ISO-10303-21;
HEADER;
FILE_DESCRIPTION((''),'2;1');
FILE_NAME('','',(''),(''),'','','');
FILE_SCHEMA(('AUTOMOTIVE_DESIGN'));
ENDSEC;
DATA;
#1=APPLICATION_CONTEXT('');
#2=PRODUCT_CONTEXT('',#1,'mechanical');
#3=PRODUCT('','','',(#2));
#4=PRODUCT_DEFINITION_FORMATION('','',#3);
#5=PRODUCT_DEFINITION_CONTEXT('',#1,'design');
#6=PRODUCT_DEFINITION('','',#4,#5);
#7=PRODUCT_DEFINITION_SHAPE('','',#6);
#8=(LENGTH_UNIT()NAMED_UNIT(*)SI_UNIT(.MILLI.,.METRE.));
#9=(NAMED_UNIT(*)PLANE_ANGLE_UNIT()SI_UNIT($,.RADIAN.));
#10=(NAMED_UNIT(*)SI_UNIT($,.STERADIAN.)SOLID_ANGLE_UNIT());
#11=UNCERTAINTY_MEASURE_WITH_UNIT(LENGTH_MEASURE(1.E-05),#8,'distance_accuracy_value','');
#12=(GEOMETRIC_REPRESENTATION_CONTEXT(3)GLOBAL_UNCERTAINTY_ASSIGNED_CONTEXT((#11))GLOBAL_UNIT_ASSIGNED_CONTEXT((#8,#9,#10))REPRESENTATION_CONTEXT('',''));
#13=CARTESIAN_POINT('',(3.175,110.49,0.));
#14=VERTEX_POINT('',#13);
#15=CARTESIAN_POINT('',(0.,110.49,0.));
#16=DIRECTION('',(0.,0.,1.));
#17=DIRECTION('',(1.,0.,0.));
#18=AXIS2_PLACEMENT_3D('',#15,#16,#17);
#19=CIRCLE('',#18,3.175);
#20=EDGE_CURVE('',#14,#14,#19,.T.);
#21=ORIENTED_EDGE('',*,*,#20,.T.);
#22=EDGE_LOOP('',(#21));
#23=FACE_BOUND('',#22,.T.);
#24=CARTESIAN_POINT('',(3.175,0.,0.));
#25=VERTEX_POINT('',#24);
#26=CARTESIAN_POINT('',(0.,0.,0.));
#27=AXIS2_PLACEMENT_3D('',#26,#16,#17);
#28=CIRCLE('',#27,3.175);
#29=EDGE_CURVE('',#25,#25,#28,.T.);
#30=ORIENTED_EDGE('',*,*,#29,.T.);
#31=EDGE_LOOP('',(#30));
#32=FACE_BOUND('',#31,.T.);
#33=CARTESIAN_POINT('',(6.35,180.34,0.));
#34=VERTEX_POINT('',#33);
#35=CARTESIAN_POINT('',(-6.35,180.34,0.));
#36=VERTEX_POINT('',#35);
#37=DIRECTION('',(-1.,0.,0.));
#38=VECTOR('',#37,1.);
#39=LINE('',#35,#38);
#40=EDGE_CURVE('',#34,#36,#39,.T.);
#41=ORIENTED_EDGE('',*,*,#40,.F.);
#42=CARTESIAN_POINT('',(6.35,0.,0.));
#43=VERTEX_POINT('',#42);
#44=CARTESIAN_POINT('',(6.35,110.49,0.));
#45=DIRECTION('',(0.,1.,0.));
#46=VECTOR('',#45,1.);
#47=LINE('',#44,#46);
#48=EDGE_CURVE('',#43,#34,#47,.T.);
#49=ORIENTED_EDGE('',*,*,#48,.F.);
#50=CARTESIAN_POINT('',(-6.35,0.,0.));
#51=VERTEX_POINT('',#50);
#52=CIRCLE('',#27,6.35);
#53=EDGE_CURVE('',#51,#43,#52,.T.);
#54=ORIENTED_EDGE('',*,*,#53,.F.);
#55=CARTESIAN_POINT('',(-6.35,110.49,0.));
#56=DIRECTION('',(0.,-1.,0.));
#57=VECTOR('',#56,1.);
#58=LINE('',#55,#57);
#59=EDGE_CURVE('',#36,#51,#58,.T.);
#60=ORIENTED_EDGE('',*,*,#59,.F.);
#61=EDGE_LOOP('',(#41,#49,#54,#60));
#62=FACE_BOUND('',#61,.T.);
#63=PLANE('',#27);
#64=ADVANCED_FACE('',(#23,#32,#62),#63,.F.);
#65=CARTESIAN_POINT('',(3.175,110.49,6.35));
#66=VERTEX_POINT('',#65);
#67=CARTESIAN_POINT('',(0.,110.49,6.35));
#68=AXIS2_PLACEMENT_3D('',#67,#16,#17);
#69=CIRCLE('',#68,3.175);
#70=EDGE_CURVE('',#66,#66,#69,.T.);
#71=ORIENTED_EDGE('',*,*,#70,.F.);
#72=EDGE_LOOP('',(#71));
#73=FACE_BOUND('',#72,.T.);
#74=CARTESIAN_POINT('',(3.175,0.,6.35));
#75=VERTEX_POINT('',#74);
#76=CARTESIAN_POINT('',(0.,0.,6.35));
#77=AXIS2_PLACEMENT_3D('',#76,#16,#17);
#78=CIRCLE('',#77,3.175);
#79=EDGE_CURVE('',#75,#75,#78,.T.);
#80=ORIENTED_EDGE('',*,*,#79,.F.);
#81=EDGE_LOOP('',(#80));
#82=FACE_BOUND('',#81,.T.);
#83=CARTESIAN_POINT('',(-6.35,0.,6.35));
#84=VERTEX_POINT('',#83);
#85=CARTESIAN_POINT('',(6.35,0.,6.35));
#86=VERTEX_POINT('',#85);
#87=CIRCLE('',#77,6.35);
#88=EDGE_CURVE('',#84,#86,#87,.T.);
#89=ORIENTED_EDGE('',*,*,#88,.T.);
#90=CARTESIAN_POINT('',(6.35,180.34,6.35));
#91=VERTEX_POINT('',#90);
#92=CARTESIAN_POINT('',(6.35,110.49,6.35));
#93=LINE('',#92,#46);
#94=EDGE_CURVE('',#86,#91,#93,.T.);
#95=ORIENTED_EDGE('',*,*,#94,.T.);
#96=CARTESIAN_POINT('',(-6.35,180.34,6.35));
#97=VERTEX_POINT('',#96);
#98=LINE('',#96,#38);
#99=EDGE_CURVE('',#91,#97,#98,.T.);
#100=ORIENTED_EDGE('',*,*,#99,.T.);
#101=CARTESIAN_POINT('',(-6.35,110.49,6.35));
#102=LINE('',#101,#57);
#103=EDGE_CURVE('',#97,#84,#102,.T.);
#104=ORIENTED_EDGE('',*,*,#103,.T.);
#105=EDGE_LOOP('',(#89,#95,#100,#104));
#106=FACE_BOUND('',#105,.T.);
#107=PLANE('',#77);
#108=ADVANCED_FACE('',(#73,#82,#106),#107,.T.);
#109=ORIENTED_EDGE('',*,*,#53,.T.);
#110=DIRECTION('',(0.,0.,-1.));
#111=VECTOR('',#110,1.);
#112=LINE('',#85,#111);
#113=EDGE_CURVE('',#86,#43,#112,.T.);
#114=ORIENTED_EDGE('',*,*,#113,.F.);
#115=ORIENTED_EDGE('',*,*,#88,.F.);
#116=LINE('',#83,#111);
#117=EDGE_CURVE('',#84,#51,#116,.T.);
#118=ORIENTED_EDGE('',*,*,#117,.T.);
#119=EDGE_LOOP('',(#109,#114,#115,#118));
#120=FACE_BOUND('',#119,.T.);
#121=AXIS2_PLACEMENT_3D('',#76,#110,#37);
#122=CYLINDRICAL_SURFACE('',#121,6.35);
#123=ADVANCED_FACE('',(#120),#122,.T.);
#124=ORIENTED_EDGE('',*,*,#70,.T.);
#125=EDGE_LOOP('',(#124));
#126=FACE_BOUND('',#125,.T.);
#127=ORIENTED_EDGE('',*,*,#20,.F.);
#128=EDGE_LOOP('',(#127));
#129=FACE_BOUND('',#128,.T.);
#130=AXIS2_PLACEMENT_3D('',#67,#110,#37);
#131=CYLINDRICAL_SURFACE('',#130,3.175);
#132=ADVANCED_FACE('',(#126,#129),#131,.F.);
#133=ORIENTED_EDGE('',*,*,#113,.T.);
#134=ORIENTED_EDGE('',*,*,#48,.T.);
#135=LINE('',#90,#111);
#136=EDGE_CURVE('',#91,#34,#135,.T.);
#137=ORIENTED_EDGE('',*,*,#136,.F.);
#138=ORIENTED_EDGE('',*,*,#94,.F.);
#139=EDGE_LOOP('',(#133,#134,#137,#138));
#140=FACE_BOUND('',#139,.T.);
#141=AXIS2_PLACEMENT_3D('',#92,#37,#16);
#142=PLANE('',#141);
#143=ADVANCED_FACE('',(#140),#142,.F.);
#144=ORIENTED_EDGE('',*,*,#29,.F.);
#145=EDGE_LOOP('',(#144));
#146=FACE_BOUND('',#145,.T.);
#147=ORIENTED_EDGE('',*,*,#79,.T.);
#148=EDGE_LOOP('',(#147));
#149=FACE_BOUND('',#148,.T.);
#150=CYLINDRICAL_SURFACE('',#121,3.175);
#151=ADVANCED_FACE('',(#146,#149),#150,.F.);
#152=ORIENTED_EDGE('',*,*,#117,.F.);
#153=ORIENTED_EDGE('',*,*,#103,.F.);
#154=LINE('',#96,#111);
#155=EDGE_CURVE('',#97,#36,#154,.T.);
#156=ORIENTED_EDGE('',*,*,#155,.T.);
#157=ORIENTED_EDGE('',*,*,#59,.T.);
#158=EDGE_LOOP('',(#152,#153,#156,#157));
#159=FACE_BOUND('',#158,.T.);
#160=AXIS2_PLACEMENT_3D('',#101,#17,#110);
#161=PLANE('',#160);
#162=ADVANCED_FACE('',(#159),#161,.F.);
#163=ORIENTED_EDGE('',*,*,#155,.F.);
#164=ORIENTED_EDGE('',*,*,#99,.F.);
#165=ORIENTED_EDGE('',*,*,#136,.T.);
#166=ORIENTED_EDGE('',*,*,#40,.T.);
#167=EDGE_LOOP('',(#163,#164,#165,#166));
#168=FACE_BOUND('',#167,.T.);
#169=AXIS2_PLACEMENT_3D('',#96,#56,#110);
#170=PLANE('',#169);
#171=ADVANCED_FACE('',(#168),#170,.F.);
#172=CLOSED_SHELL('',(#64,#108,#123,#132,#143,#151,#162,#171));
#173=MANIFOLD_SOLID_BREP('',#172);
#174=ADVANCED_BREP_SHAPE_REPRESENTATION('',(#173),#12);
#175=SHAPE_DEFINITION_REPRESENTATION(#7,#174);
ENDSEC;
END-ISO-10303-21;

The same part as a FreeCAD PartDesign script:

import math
import FreeCAD as App
import Part
import Sketcher
Q = App.Units.Quantity

doc = App.newDocument("Part")
params = doc.addObject("Spreadsheet::Sheet", "Params")
for row, (alias, value) in enumerate([
    ("sketch1_diameter", "0.25 in"),
    ("sketch1_radius", "0.25 in"),
    ("sketch1_height", "7.1 in"),
    ("pad1_length", "0.25 in"),
], start=1):
    params.set(f"A{row}", alias)
    params.set(f"B{row}", "=" + value)
    params.setAlias(f"B{row}", alias)

body = doc.addObject("PartDesign::Body", "Body")

# Sketch on XY plane
sketch1 = body.newObject("Sketcher::SketchObject", "Sketch")
sketch1.AttachmentSupport = (doc.getObject("XY_Plane"), [""])
sketch1.MapMode = "FlatFace"
sketch1.addGeometry([
    Part.ArcOfCircle(Part.Circle(App.Vector(0, 0, 0), App.Vector(0, 0, 1), 6.35), math.radians(180), math.radians(360)),  # 0
    Part.LineSegment(App.Vector(6.35, 0, 0), App.Vector(6.35, 180.34, 0)),  # 1
    Part.LineSegment(App.Vector(6.35, 180.34, 0), App.Vector(-6.35, 180.34, 0)),  # 2
    Part.LineSegment(App.Vector(-6.35, 180.34, 0), App.Vector(-6.35, 0, 0)),  # 3
    Part.Circle(App.Vector(0, 0, 0), App.Vector(0, 0, 1), 3.175),  # 4
    Part.Circle(App.Vector(0, 110.49, 0), App.Vector(0, 0, 1), 3.175),  # 5
], False)
sketch1.addConstraint([
    Sketcher.Constraint("Tangent", 0, 2, 1, 1),
    Sketcher.Constraint("Coincident", 1, 2, 2, 1),
    Sketcher.Constraint("Coincident", 2, 2, 3, 1),
    Sketcher.Constraint("Tangent", 3, 2, 0, 1),
    Sketcher.Constraint("Vertical", 1),
    Sketcher.Constraint("Horizontal", 2),
    Sketcher.Constraint("Vertical", 3),
    Sketcher.Constraint("Coincident", 0, 3, -1, 1),
    Sketcher.Constraint("Coincident", 4, 3, -1, 1),
    Sketcher.Constraint("Equal", 4, 5),
    Sketcher.Constraint("PointOnObject", 5, 3, -2),
    Sketcher.Constraint("Diameter", 4, Q("0.25 in")),
    Sketcher.Constraint("Radius", 0, Q("0.25 in")),
    Sketcher.Constraint("DistanceY", 1, 1, 1, 2, Q("7.1 in")),
    Sketcher.Constraint("DistanceY", -1, 1, 5, 3, Q("4.35 in")),
])
sketch1.setExpression("Constraints[11]", "Params.sketch1_diameter")
sketch1.setExpression("Constraints[12]", "Params.sketch1_radius")
sketch1.setExpression("Constraints[13]", "Params.sketch1_height")
pad1 = body.newObject("PartDesign::Pad", "Pad")
pad1.Profile = sketch1
pad1.setExpression("Length", "Params.pad1_length")

doc.recompute()
